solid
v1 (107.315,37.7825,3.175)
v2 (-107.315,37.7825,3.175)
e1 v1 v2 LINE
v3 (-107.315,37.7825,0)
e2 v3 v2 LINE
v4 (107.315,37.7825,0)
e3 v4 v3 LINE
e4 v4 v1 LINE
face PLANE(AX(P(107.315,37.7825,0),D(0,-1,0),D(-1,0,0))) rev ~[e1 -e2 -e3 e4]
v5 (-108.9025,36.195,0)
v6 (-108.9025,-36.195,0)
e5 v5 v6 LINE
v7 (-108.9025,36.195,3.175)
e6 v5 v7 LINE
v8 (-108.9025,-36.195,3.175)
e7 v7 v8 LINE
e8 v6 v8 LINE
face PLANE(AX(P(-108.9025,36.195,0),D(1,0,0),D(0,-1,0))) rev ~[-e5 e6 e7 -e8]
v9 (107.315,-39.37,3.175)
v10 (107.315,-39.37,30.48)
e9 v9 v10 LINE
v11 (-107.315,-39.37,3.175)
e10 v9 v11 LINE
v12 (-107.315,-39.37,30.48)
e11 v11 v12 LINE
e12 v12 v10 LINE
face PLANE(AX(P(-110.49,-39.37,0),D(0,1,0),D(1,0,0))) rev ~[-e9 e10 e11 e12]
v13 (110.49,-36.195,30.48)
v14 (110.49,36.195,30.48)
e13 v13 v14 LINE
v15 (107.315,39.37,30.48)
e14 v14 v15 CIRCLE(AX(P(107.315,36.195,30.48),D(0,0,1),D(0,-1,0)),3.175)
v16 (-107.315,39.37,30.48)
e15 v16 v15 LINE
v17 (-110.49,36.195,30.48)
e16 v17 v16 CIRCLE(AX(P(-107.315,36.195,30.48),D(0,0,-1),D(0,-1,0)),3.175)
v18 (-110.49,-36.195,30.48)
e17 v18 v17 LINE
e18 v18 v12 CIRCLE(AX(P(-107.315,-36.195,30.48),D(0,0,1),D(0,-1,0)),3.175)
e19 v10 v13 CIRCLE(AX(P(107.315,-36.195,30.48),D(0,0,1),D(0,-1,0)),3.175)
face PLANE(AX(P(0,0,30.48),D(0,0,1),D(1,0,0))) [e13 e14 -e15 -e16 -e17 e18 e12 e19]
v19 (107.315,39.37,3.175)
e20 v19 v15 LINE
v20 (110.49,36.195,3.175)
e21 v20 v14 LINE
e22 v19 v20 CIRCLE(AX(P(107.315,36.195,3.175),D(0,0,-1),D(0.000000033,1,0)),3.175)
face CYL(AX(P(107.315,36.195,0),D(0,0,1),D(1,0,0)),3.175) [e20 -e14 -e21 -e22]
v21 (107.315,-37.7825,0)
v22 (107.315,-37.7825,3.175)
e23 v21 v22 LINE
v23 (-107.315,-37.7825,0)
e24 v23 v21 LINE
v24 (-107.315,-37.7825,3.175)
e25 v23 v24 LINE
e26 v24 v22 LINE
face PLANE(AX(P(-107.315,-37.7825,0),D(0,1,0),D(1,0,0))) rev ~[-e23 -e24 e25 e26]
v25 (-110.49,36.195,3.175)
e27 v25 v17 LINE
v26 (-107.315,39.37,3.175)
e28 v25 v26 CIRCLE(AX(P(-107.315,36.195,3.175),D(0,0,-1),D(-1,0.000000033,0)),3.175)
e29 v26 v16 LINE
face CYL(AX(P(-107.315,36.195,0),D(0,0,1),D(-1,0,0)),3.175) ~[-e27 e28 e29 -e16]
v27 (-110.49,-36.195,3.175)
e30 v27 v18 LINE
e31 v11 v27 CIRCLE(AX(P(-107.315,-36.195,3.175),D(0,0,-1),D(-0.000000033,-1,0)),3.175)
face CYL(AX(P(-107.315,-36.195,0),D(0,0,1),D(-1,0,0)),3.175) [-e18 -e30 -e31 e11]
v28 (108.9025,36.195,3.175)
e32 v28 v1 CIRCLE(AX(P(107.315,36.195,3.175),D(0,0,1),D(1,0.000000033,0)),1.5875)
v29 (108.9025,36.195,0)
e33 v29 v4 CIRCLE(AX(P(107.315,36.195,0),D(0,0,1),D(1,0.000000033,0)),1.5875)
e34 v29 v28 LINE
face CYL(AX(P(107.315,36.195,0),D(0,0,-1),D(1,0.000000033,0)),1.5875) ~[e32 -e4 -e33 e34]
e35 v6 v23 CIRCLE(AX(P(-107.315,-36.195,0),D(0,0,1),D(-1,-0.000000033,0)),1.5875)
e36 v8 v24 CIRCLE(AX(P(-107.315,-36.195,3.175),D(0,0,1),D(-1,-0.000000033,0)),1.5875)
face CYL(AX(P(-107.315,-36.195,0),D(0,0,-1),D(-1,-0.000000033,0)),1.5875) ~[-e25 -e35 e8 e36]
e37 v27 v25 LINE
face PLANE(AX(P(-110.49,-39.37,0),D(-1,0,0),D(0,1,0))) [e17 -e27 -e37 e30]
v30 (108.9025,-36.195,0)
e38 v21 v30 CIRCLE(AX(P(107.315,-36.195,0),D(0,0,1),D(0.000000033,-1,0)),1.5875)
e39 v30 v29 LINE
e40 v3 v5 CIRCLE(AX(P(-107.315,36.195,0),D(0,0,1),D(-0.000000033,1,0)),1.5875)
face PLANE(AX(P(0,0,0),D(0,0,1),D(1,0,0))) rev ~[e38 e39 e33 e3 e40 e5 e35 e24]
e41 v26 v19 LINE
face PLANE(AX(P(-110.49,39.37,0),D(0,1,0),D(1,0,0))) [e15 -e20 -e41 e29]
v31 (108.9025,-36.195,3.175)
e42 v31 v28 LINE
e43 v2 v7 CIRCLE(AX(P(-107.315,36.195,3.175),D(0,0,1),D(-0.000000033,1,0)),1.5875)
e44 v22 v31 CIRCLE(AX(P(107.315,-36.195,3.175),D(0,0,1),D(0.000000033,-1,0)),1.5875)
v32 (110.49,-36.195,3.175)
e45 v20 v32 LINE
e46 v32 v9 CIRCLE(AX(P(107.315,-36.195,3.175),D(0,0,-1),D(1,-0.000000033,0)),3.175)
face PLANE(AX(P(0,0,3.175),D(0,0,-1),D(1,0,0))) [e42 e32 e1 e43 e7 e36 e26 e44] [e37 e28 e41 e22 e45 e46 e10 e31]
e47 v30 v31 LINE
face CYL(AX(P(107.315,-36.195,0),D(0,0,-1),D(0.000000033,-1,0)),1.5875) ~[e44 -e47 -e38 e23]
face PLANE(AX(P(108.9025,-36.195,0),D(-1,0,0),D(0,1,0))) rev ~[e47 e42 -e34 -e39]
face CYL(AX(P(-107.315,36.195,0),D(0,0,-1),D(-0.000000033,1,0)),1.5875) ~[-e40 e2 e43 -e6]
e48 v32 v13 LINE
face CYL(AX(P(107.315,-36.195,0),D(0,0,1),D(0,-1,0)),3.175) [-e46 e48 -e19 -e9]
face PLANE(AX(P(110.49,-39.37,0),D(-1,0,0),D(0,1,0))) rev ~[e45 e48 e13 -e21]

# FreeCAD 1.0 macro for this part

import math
import FreeCAD as App
import Part
import Sketcher
Q = App.Units.Quantity


def edges_at(feature, points):
    """Names of the edges that pass closest to the given points."""
    edges = feature.Shape.Edges
    near = lambda p: min(range(len(edges)), key=lambda i: edges[i].distToShape(Part.Vertex(*p))[0])
    return sorted({f"Edge{near(p) + 1}" for p in points})

doc = App.newDocument("Part")
body = doc.addObject("PartDesign::Body", "Body")

sketch1 = body.newObject("Sketcher::SketchObject", "Sketch")
sketch1.AttachmentSupport = (doc.getObject("XY_Plane"), [""])
sketch1.MapMode = "FlatFace"
sketch1.addGeometry(Part.LineSegment(App.Vector(-110, 39, 0), App.Vector(-110, -39, 0)), False)
sketch1.addGeometry(Part.LineSegment(App.Vector(-110, -39, 0), App.Vector(110, -39, 0)), False)
sketch1.addGeometry(Part.LineSegment(App.Vector(110, -39, 0), App.Vector(110, 39, 0)), False)
sketch1.addGeometry(Part.LineSegment(App.Vector(110, 39, 0), App.Vector(-110, 39, 0)), False)
sketch1.addConstraint(Sketcher.Constraint("Coincident", 0, 2, 1, 1))
sketch1.addConstraint(Sketcher.Constraint("Coincident", 1, 2, 2, 1))
sketch1.addConstraint(Sketcher.Constraint("Coincident", 2, 2, 3, 1))
sketch1.addConstraint(Sketcher.Constraint("Coincident", 3, 2, 0, 1))
sketch1.addConstraint(Sketcher.Constraint("Vertical", 0))
sketch1.addConstraint(Sketcher.Constraint("Horizontal", 1))
sketch1.addConstraint(Sketcher.Constraint("Vertical", 2))
sketch1.addConstraint(Sketcher.Constraint("Horizontal", 3))
sketch1.addConstraint(Sketcher.Constraint("Symmetric", 0, 2, 2, 2, -1, 1))
sketch1.addConstraint(Sketcher.Constraint("DistanceX", 1, 1, 1, 2, Q("8.7 in")))
sketch1.addConstraint(Sketcher.Constraint("DistanceY", 0, 2, 0, 1, Q("3.1 in")))
pad1 = body.newObject("PartDesign::Pad", "Pad")
pad1.Profile = sketch1
pad1.Length = Q("1.2 in")
doc.recompute()

fillet = body.newObject("PartDesign::Fillet", "Fillet")
fillet.Base = (pad1, edges_at(pad1, [
    (-110.49, -39.37, 15.24),
    (110.49, 39.37, 15.24),
    (110.49, -39.37, 15.24),
    (-110.49, 39.37, 15.24),
]))
fillet.Radius = Q("0.125 in")

sketch2 = body.newObject("Sketcher::SketchObject", "Sketch001")
sketch2.AttachmentSupport = (doc.getObject("XY_Plane"), [""])
sketch2.MapMode = "FlatFace"
sketch2.addGeometry(Part.ArcOfCircle(Part.Circle(App.Vector(107.3, -36.2, 0), App.Vector(0, 0, 1), 3.2), math.radians(-90), math.radians(0)), False)
sketch2.addGeometry(Part.LineSegment(App.Vector(107.3, -39.4, 0), App.Vector(-107.3, -39.4, 0)), False)
sketch2.addGeometry(Part.ArcOfCircle(Part.Circle(App.Vector(-107.3, -36.2, 0), App.Vector(0, 0, 1), 3.2), math.radians(-180), math.radians(-90)), False)
sketch2.addGeometry(Part.LineSegment(App.Vector(-110.5, -36.2, 0), App.Vector(-110.5, 36.2, 0)), False)
sketch2.addGeometry(Part.ArcOfCircle(Part.Circle(App.Vector(-107.3, 36.2, 0), App.Vector(0, 0, 1), 3.2), math.radians(90), math.radians(180)), False)
sketch2.addGeometry(Part.LineSegment(App.Vector(-107.3, 39.4, 0), App.Vector(107.3, 39.4, 0)), False)
sketch2.addGeometry(Part.ArcOfCircle(Part.Circle(App.Vector(107.3, 36.2, 0), App.Vector(0, 0, 1), 3.2), math.radians(0), math.radians(90)), False)
sketch2.addGeometry(Part.LineSegment(App.Vector(110.5, 36.2, 0), App.Vector(110.5, -36.2, 0)), False)
sketch2.addGeometry(Part.LineSegment(App.Vector(-107.3, -37.8, 0), App.Vector(107.3, -37.8, 0)), False)
sketch2.addGeometry(Part.ArcOfCircle(Part.Circle(App.Vector(107.3, -36.2, 0), App.Vector(0, 0, 1), 1.6), math.radians(-90), math.radians(0)), False)
sketch2.addGeometry(Part.LineSegment(App.Vector(108.9, -36.2, 0), App.Vector(108.9, 36.2, 0)), False)
sketch2.addGeometry(Part.ArcOfCircle(Part.Circle(App.Vector(107.3, 36.2, 0), App.Vector(0, 0, 1), 1.6), math.radians(0), math.radians(90)), False)
sketch2.addGeometry(Part.LineSegment(App.Vector(107.3, 37.8, 0), App.Vector(-107.3, 37.8, 0)), False)
sketch2.addGeometry(Part.ArcOfCircle(Part.Circle(App.Vector(-107.3, 36.2, 0), App.Vector(0, 0, 1), 1.6), math.radians(90), math.radians(180)), False)
sketch2.addGeometry(Part.LineSegment(App.Vector(-108.9, 36.2, 0), App.Vector(-108.9, -36.2, 0)), False)
sketch2.addGeometry(Part.ArcOfCircle(Part.Circle(App.Vector(-107.3, -36.2, 0), App.Vector(0, 0, 1), 1.6), math.radians(-180), math.radians(-90)), False)
sketch2.addConstraint(Sketcher.Constraint("Tangent", 0, 1, 1, 1))
sketch2.addConstraint(Sketcher.Constraint("Tangent", 1, 2, 2, 2))
sketch2.addConstraint(Sketcher.Constraint("Tangent", 2, 1, 3, 1))
sketch2.addConstraint(Sketcher.Constraint("Tangent", 3, 2, 4, 2))
sketch2.addConstraint(Sketcher.Constraint("Tangent", 4, 1, 5, 1))
sketch2.addConstraint(Sketcher.Constraint("Tangent", 5, 2, 6, 2))
sketch2.addConstraint(Sketcher.Constraint("Tangent", 6, 1, 7, 1))
sketch2.addConstraint(Sketcher.Constraint("Tangent", 7, 2, 0, 2))
sketch2.addConstraint(Sketcher.Constraint("Tangent", 8, 2, 9, 1))
sketch2.addConstraint(Sketcher.Constraint("Tangent", 9, 2, 10, 1))
sketch2.addConstraint(Sketcher.Constraint("Tangent", 10, 2, 11, 1))
sketch2.addConstraint(Sketcher.Constraint("Tangent", 11, 2, 12, 1))
sketch2.addConstraint(Sketcher.Constraint("Tangent", 12, 2, 13, 1))
sketch2.addConstraint(Sketcher.Constraint("Tangent", 13, 2, 14, 1))
sketch2.addConstraint(Sketcher.Constraint("Tangent", 14, 2, 15, 1))
sketch2.addConstraint(Sketcher.Constraint("Tangent", 15, 2, 8, 1))
sketch2.addConstraint(Sketcher.Constraint("Horizontal", 1))
sketch2.addConstraint(Sketcher.Constraint("Vertical", 3))
sketch2.addConstraint(Sketcher.Constraint("Horizontal", 5))
sketch2.addConstraint(Sketcher.Constraint("Vertical", 7))
sketch2.addConstraint(Sketcher.Constraint("Horizontal", 8))
sketch2.addConstraint(Sketcher.Constraint("Vertical", 10))
sketch2.addConstraint(Sketcher.Constraint("Horizontal", 12))
sketch2.addConstraint(Sketcher.Constraint("Vertical", 14))
sketch2.addConstraint(Sketcher.Constraint("Coincident", 9, 3, 0, 3))
sketch2.addConstraint(Sketcher.Constraint("Coincident", 11, 3, 6, 3))
sketch2.addConstraint(Sketcher.Constraint("Coincident", 13, 3, 4, 3))
sketch2.addConstraint(Sketcher.Constraint("Equal", 0, 2))
sketch2.addConstraint(Sketcher.Constraint("Equal", 2, 4))
sketch2.addConstraint(Sketcher.Constraint("Equal", 4, 6))
sketch2.addConstraint(Sketcher.Constraint("Equal", 13, 15))
sketch2.addConstraint(Sketcher.Constraint("Symmetric", 0, 3, 4, 3, -1, 1))
sketch2.addConstraint(Sketcher.Constraint("Radius", 0, Q("0.125 in")))
sketch2.addConstraint(Sketcher.Constraint("Radius", 9, Q("0.0625 in")))
sketch2.addConstraint(Sketcher.Constraint("DistanceX", 1, 2, 1, 1, Q("8.45 in")))
sketch2.addConstraint(Sketcher.Constraint("DistanceY", 3, 1, 3, 2, Q("2.85 in")))
pocket1 = body.newObject("PartDesign::Pocket", "Pocket")
pocket1.Profile = sketch2
pocket1.Length = Q("0.125 in")
pocket1.Reversed = True

doc.recompute()
